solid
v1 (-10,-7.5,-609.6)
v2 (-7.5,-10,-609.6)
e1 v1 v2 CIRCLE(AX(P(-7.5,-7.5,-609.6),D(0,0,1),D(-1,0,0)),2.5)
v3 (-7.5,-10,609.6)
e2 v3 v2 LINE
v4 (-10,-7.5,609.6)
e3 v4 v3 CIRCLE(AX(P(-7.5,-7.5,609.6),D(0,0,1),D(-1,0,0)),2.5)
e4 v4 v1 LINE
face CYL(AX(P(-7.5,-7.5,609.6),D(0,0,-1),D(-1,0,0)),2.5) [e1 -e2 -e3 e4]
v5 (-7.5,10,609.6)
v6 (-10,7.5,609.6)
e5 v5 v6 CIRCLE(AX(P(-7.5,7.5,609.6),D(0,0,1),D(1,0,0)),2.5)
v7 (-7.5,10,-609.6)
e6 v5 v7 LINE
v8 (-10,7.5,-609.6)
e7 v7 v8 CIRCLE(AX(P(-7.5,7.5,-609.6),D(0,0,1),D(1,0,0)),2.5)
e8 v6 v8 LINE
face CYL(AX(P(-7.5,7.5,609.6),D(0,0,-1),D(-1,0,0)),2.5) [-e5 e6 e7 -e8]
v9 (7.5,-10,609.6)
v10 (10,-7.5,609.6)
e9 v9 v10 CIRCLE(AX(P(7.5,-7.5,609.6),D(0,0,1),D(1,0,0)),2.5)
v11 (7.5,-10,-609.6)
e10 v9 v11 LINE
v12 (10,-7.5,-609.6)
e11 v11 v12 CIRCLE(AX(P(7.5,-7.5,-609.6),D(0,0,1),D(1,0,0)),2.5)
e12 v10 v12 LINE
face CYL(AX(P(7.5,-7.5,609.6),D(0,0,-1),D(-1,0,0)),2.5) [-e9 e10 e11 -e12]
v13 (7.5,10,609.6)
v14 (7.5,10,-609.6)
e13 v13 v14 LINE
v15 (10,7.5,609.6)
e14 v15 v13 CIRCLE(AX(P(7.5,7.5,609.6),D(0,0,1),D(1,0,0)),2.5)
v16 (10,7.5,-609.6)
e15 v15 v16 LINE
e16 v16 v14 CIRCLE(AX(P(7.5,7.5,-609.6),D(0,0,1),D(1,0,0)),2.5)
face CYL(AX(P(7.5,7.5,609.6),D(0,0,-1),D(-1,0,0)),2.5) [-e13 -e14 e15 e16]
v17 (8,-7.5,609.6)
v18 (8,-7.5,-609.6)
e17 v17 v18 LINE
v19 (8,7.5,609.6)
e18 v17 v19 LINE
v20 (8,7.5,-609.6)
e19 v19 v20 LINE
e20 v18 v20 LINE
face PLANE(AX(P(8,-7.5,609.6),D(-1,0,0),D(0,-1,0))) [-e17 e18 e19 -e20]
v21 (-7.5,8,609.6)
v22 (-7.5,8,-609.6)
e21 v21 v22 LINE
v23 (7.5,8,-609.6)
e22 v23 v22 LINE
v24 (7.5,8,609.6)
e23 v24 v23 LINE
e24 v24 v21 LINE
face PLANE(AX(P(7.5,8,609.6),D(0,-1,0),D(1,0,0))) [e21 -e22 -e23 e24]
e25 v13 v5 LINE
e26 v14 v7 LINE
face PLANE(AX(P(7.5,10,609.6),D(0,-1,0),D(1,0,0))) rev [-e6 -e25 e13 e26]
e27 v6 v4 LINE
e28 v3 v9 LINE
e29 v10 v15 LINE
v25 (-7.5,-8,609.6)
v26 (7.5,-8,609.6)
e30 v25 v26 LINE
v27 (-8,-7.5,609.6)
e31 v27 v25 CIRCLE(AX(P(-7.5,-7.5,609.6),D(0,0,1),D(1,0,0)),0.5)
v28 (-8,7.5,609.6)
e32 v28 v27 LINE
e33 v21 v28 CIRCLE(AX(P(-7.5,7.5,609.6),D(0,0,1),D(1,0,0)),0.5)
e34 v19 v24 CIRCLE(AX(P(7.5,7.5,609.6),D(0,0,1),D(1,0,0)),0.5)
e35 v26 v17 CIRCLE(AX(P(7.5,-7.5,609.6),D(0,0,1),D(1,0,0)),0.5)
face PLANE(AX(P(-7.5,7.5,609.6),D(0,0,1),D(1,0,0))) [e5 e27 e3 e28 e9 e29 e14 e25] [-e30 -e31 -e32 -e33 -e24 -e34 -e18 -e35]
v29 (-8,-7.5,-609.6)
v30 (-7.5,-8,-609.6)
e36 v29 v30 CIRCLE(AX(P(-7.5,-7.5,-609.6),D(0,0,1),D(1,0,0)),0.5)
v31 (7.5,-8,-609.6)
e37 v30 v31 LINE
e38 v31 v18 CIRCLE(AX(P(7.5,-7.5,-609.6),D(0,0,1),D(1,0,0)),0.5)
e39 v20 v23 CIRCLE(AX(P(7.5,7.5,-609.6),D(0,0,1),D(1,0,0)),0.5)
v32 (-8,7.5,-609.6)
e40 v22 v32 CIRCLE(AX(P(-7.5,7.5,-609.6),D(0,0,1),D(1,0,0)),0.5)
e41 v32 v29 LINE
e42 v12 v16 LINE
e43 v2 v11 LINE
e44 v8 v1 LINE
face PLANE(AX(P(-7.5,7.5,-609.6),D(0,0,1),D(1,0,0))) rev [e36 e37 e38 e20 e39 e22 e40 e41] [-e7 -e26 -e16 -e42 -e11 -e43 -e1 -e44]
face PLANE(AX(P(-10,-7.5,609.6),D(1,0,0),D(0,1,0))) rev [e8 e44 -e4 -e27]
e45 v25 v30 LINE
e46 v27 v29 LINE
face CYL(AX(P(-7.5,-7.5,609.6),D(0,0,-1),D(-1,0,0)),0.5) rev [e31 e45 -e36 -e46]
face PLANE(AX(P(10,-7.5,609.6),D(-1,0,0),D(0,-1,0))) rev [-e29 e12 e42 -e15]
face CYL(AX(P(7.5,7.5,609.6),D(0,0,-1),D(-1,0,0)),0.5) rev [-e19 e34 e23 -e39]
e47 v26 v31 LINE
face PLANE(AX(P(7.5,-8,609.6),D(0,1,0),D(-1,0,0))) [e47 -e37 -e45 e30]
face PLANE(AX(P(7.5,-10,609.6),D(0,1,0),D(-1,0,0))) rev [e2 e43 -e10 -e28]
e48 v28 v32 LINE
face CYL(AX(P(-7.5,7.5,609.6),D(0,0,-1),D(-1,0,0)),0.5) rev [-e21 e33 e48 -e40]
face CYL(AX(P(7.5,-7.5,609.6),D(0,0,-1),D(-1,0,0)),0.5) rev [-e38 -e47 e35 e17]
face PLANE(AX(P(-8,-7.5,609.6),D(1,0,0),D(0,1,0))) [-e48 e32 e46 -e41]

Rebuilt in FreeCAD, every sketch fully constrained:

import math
import FreeCAD as App
import Part
import Sketcher
from FreeCAD import Vector

doc = App.newDocument("Part")
body = doc.addObject("PartDesign::Body", "Body")

# Sketch on XY plane
sketch1 = body.newObject("Sketcher::SketchObject", "Sketch")
sketch1.AttachmentSupport = (doc.getObject("XY_Plane"), [""])
sketch1.MapMode = "FlatFace"
sketch1.addGeometry([
    Part.LineSegment(Vector(-10, 7.5, 0), Vector(-10, -7.5, 0)),  # 0
    Part.ArcOfCircle(Part.Circle(Vector(-7.5, -7.5, 0), Vector(0, 0, 1), 2.5), math.radians(180), math.radians(270)),  # 1
    Part.LineSegment(Vector(-7.5, -10, 0), Vector(7.5, -10, 0)),  # 2
    Part.ArcOfCircle(Part.Circle(Vector(7.5, -7.5, 0), Vector(0, 0, 1), 2.5), math.radians(-90), math.radians(0)),  # 3
    Part.LineSegment(Vector(10, -7.5, 0), Vector(10, 7.5, 0)),  # 4
    Part.ArcOfCircle(Part.Circle(Vector(7.5, 7.5, 0), Vector(0, 0, 1), 2.5), math.radians(0), math.radians(90)),  # 5
    Part.LineSegment(Vector(7.5, 10, 0), Vector(-7.5, 10, 0)),  # 6
    Part.ArcOfCircle(Part.Circle(Vector(-7.5, 7.5, 0), Vector(0, 0, 1), 2.5), math.radians(90), math.radians(180)),  # 7
    Part.LineSegment(Vector(-8, -7.5, 0), Vector(-8, 7.5, 0)),  # 8
    Part.ArcOfCircle(Part.Circle(Vector(-7.5, 7.5, 0), Vector(0, 0, 1), 0.5), math.radians(90), math.radians(180)),  # 9
    Part.LineSegment(Vector(-7.5, 8, 0), Vector(7.5, 8, 0)),  # 10
    Part.ArcOfCircle(Part.Circle(Vector(7.5, 7.5, 0), Vector(0, 0, 1), 0.5), math.radians(0), math.radians(90)),  # 11
    Part.LineSegment(Vector(8, 7.5, 0), Vector(8, -7.5, 0)),  # 12
    Part.ArcOfCircle(Part.Circle(Vector(7.5, -7.5, 0), Vector(0, 0, 1), 0.5), math.radians(-90), math.radians(0)),  # 13
    Part.LineSegment(Vector(7.5, -8, 0), Vector(-7.5, -8, 0)),  # 14
    Part.ArcOfCircle(Part.Circle(Vector(-7.5, -7.5, 0), Vector(0, 0, 1), 0.5), math.radians(180), math.radians(270)),  # 15
], False)
sketch1.addConstraint([
    Sketcher.Constraint("Tangent", 0, 2, 1, 1),
    Sketcher.Constraint("Tangent", 1, 2, 2, 1),
    Sketcher.Constraint("Tangent", 2, 2, 3, 1),
    Sketcher.Constraint("Tangent", 3, 2, 4, 1),
    Sketcher.Constraint("Tangent", 4, 2, 5, 1),
    Sketcher.Constraint("Tangent", 5, 2, 6, 1),
    Sketcher.Constraint("Tangent", 6, 2, 7, 1),
    Sketcher.Constraint("Tangent", 7, 2, 0, 1),
    Sketcher.Constraint("Tangent", 8, 2, 9, 2),
    Sketcher.Constraint("Tangent", 9, 1, 10, 1),
    Sketcher.Constraint("Tangent", 10, 2, 11, 2),
    Sketcher.Constraint("Tangent", 11, 1, 12, 1),
    Sketcher.Constraint("Tangent", 12, 2, 13, 2),
    Sketcher.Constraint("Tangent", 13, 1, 14, 1),
    Sketcher.Constraint("Tangent", 14, 2, 15, 2),
    Sketcher.Constraint("Tangent", 15, 1, 8, 1),
    Sketcher.Constraint("Vertical", 0),
    Sketcher.Constraint("Horizontal", 2),
    Sketcher.Constraint("Vertical", 4),
    Sketcher.Constraint("Horizontal", 6),
    Sketcher.Constraint("Vertical", 8),
    Sketcher.Constraint("Horizontal", 10),
    Sketcher.Constraint("Vertical", 12),
    Sketcher.Constraint("Horizontal", 14),
    Sketcher.Constraint("Coincident", 9, 3, 7, 3),
    Sketcher.Constraint("Coincident", 11, 3, 5, 3),
    Sketcher.Constraint("Coincident", 13, 3, 3, 3),
    Sketcher.Constraint("Equal", 1, 3),
    Sketcher.Constraint("Equal", 3, 5),
    Sketcher.Constraint("Equal", 5, 7),
    Sketcher.Constraint("Equal", 13, 15),
    Sketcher.Constraint("Symmetric", 1, 3, 5, 3, -1, 1),
    Sketcher.Constraint("Equal", 14, 0),
    Sketcher.Constraint("Radius", 1, 2.5),
    Sketcher.Constraint("Radius", 9, 0.5),
    Sketcher.Constraint("DistanceX", 2, 1, 2, 2, 15.0),
])
pad1 = body.newObject("PartDesign::Pad", "Pad")
pad1.Profile = sketch1
pad1.Length = 1219.2
pad1.Midplane = True

doc.recompute()
